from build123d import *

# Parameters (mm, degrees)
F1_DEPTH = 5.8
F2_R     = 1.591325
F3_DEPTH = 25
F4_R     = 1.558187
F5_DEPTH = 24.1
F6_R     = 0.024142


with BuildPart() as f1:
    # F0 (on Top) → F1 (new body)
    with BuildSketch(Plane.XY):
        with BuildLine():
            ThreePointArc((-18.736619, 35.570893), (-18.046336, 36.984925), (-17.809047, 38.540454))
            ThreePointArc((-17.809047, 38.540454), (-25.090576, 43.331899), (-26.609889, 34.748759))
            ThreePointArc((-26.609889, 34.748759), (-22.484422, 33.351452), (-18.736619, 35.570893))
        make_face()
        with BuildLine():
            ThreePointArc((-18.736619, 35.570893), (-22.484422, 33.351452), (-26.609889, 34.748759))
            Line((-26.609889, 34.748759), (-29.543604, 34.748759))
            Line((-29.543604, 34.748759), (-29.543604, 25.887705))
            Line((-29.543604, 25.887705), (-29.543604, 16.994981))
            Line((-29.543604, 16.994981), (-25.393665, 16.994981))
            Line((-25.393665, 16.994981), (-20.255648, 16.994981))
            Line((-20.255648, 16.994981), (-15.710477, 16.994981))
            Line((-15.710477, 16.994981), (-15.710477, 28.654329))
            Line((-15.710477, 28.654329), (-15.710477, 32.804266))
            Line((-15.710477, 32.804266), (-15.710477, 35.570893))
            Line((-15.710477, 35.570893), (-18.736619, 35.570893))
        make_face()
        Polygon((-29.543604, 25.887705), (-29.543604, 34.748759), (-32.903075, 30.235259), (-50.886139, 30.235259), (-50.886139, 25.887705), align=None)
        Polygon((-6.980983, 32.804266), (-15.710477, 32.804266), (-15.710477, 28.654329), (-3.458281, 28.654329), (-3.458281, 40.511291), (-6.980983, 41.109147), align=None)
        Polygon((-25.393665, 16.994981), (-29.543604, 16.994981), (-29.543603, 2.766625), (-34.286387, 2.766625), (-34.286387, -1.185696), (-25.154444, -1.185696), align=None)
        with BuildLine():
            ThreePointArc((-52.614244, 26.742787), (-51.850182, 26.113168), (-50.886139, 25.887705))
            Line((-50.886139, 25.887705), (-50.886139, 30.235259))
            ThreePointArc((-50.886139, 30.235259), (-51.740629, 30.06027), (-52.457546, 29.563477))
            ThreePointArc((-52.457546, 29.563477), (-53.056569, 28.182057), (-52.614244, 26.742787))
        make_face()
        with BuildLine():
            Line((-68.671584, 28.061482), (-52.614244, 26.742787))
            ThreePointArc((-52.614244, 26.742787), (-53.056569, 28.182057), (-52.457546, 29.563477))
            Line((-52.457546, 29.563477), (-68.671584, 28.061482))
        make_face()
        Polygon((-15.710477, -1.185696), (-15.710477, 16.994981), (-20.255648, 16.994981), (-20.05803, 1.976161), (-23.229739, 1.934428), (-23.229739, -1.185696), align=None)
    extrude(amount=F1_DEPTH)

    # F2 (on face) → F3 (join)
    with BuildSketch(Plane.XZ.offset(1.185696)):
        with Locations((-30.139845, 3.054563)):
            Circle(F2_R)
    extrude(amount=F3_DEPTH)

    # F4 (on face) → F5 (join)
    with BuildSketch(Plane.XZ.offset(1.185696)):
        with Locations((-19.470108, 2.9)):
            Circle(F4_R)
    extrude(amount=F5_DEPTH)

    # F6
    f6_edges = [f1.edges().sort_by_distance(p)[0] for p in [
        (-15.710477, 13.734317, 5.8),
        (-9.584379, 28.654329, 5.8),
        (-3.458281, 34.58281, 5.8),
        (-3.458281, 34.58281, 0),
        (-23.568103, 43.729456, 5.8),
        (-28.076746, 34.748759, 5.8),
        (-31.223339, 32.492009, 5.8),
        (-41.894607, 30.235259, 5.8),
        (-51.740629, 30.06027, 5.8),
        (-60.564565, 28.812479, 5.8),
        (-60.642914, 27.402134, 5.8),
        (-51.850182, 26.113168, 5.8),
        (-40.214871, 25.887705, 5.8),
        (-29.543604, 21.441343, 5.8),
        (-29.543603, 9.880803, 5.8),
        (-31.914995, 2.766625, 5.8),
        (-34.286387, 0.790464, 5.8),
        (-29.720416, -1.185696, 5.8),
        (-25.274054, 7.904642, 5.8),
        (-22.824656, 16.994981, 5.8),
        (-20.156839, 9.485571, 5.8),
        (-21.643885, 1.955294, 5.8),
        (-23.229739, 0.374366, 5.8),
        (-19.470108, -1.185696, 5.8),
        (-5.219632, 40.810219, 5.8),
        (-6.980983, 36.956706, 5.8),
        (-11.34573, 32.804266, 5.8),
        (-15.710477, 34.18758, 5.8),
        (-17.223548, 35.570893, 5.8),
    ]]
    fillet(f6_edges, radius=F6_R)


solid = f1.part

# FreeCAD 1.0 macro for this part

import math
import FreeCAD as App
import Part
import Sketcher

V = App.Vector
Q = App.Units.Quantity


def edges_at(feature, points):
    """Names of the edges that pass closest to the given points."""
    edges = feature.Shape.Edges
    near = lambda p: min(range(len(edges)), key=lambda i: edges[i].distToShape(Part.Vertex(*p))[0])
    return sorted({f"Edge{near(p) + 1}" for p in points})

doc = App.newDocument("Part")
body = doc.addObject("PartDesign::Body", "Body")

sketch1 = body.newObject("Sketcher::SketchObject", "Sketch")
sketch1.AttachmentSupport = (doc.getObject("XY_Plane"), [""])
sketch1.MapMode = "FlatFace"
sketch1.addGeometry(Part.ArcOfCircle(Part.Circle(V(-23.026257, 38.540453, 0), V(0, 0, 1), 5.21721), math.radians(-34.693443), math.radians(0.000012)), False)
sketch1.addGeometry(Part.ArcOfCircle(Part.Circle(V(-23.026262, 38.540454, 0), V(0, 0, 1), 5.217215), math.radians(-0.000003), math.radians(226.615968)), False)
sketch1.addGeometry(Part.LineSegment(V(-26.609889, 34.748759, 0), V(-29.543604, 34.748759, 0)), False)
sketch1.addGeometry(Part.LineSegment(V(-29.543604, 34.748759, 0), V(-32.903075, 30.235259, 0)), False)
sketch1.addGeometry(Part.LineSegment(V(-32.903075, 30.235259, 0), V(-50.886139, 30.235259, 0)), False)
sketch1.addGeometry(Part.ArcOfCircle(Part.Circle(V(-50.886138, 28.061479, 0), V(0, 0, 1), 2.17378), math.radians(90.000014), math.radians(136.293741)), False)
sketch1.addGeometry(Part.LineSegment(V(-52.457546, 29.563477, 0), V(-68.671584, 28.061482, 0)), False)
sketch1.addGeometry(Part.LineSegment(V(-68.671584, 28.061482, 0), V(-52.614244, 26.742787, 0)), False)
sketch1.addGeometry(Part.ArcOfCircle(Part.Circle(V(-50.88614, 28.061479, 0), V(0, 0, 1), 2.173774), math.radians(-142.653262), math.radians(-89.999982)), False)
sketch1.addGeometry(Part.LineSegment(V(-50.886139, 25.887705, 0), V(-29.543604, 25.887705, 0)), False)
sketch1.addGeometry(Part.LineSegment(V(-29.543604, 25.887705, 0), V(-29.543604, 16.994981, 0)), False)
sketch1.addGeometry(Part.LineSegment(V(-29.543604, 16.994981, 0), V(-29.543603, 2.766625, 0)), False)
sketch1.addGeometry(Part.LineSegment(V(-29.543603, 2.766625, 0), V(-34.286387, 2.766625, 0)), False)
sketch1.addGeometry(Part.LineSegment(V(-34.286387, 2.766625, 0), V(-34.286387, -1.185696, 0)), False)
sketch1.addGeometry(Part.LineSegment(V(-34.286387, -1.185696, 0), V(-25.154444, -1.185696, 0)), False)
sketch1.addGeometry(Part.LineSegment(V(-25.154444, -1.185696, 0), V(-25.393665, 16.994981, 0)), False)
sketch1.addGeometry(Part.LineSegment(V(-25.393665, 16.994981, 0), V(-20.255648, 16.994981, 0)), False)
sketch1.addGeometry(Part.LineSegment(V(-20.255648, 16.994981, 0), V(-20.05803, 1.976161, 0)), False)
sketch1.addGeometry(Part.LineSegment(V(-20.05803, 1.976161, 0), V(-23.229739, 1.934428, 0)), False)
sketch1.addGeometry(Part.LineSegment(V(-23.229739, 1.934428, 0), V(-23.229739, -1.185696, 0)), False)
sketch1.addGeometry(Part.LineSegment(V(-23.229739, -1.185696, 0), V(-15.710477, -1.185696, 0)), False)
sketch1.addGeometry(Part.LineSegment(V(-15.710477, -1.185696, 0), V(-15.710477, 28.654329, 0)), False)
sketch1.addGeometry(Part.LineSegment(V(-15.710477, 28.654329, 0), V(-3.458281, 28.654329, 0)), False)
sketch1.addGeometry(Part.LineSegment(V(-3.458281, 28.654329, 0), V(-3.458281, 40.511291, 0)), False)
sketch1.addGeometry(Part.LineSegment(V(-3.458281, 40.511291, 0), V(-6.980983, 41.109147, 0)), False)
sketch1.addGeometry(Part.LineSegment(V(-6.980983, 41.109147, 0), V(-6.980983, 32.804266, 0)), False)
sketch1.addGeometry(Part.LineSegment(V(-6.980983, 32.804266, 0), V(-15.710477, 32.804266, 0)), False)
sketch1.addGeometry(Part.LineSegment(V(-15.710477, 32.804266, 0), V(-15.710477, 35.570893, 0)), False)
sketch1.addGeometry(Part.LineSegment(V(-15.710477, 35.570893, 0), V(-18.736619, 35.570893, 0)), False)
sketch1.addConstraint(Sketcher.Constraint("Coincident", 0, 2, 1, 1))
sketch1.addConstraint(Sketcher.Constraint("Coincident", 1, 2, 2, 1))
sketch1.addConstraint(Sketcher.Constraint("Coincident", 2, 2, 3, 1))
sketch1.addConstraint(Sketcher.Constraint("Coincident", 3, 2, 4, 1))
sketch1.addConstraint(Sketcher.Constraint("Coincident", 4, 2, 5, 1))
sketch1.addConstraint(Sketcher.Constraint("Coincident", 5, 2, 6, 1))
sketch1.addConstraint(Sketcher.Constraint("Coincident", 6, 2, 7, 1))
sketch1.addConstraint(Sketcher.Constraint("Coincident", 7, 2, 8, 1))
sketch1.addConstraint(Sketcher.Constraint("Coincident", 8, 2, 9, 1))
sketch1.addConstraint(Sketcher.Constraint("Coincident", 9, 2, 10, 1))
sketch1.addConstraint(Sketcher.Constraint("Coincident", 10, 2, 11, 1))
sketch1.addConstraint(Sketcher.Constraint("Coincident", 11, 2, 12, 1))
sketch1.addConstraint(Sketcher.Constraint("Coincident", 12, 2, 13, 1))
sketch1.addConstraint(Sketcher.Constraint("Coincident", 13, 2, 14, 1))
sketch1.addConstraint(Sketcher.Constraint("Coincident", 14, 2, 15, 1))
sketch1.addConstraint(Sketcher.Constraint("Coincident", 15, 2, 16, 1))
sketch1.addConstraint(Sketcher.Constraint("Coincident", 16, 2, 17, 1))
sketch1.addConstraint(Sketcher.Constraint("Coincident", 17, 2, 18, 1))
sketch1.addConstraint(Sketcher.Constraint("Coincident", 18, 2, 19, 1))
sketch1.addConstraint(Sketcher.Constraint("Coincident", 19, 2, 20, 1))
sketch1.addConstraint(Sketcher.Constraint("Coincident", 20, 2, 21, 1))
sketch1.addConstraint(Sketcher.Constraint("Coincident", 21, 2, 22, 1))
sketch1.addConstraint(Sketcher.Constraint("Coincident", 22, 2, 23, 1))
sketch1.addConstraint(Sketcher.Constraint("Coincident", 23, 2, 24, 1))
sketch1.addConstraint(Sketcher.Constraint("Coincident", 24, 2, 25, 1))
sketch1.addConstraint(Sketcher.Constraint("Coincident", 25, 2, 26, 1))
sketch1.addConstraint(Sketcher.Constraint("Coincident", 26, 2, 27, 1))
sketch1.addConstraint(Sketcher.Constraint("Coincident", 27, 2, 28, 1))
sketch1.addConstraint(Sketcher.Constraint("Coincident", 28, 2, 0, 1))
sketch1.addConstraint(Sketcher.Constraint("Horizontal", 2))
sketch1.addConstraint(Sketcher.Constraint("Horizontal", 4))
sketch1.addConstraint(Sketcher.Constraint("Horizontal", 9))
sketch1.addConstraint(Sketcher.Constraint("Vertical", 10))
sketch1.addConstraint(Sketcher.Constraint("Vertical", 11))
sketch1.addConstraint(Sketcher.Constraint("Horizontal", 12))
sketch1.addConstraint(Sketcher.Constraint("Vertical", 13))
sketch1.addConstraint(Sketcher.Constraint("Horizontal", 14))
sketch1.addConstraint(Sketcher.Constraint("Horizontal", 16))
sketch1.addConstraint(Sketcher.Constraint("Vertical", 19))
sketch1.addConstraint(Sketcher.Constraint("Horizontal", 20))
sketch1.addConstraint(Sketcher.Constraint("Vertical", 21))
sketch1.addConstraint(Sketcher.Constraint("Horizontal", 22))
sketch1.addConstraint(Sketcher.Constraint("Vertical", 23))
sketch1.addConstraint(Sketcher.Constraint("Vertical", 25))
sketch1.addConstraint(Sketcher.Constraint("Horizontal", 26))
sketch1.addConstraint(Sketcher.Constraint("Vertical", 27))
sketch1.addConstraint(Sketcher.Constraint("Horizontal", 28))
sketch1.addConstraint(Sketcher.Constraint("Coincident", 1, 3, 0, 3))
sketch1.addConstraint(Sketcher.Constraint("Coincident", 8, 3, 5, 3))
sketch1.addConstraint(Sketcher.Constraint("Radius", 0, Q("5.21721 mm")))
sketch1.addConstraint(Sketcher.Constraint("Radius", 5, Q("2.17378 mm")))
sketch1.addConstraint(Sketcher.Constraint("Radius", 8, Q("2.173774 mm")))
sketch1.addConstraint(Sketcher.Constraint("DistanceY", 8, 3, 5, 2, Q("1.501998 mm")))
sketch1.addConstraint(Sketcher.Constraint("DistanceX", 20, 1, 20, 2, Q("7.519262 mm")))
sketch1.addConstraint(Sketcher.Constraint("DistanceY", 13, 2, 13, 1, Q("3.952321 mm")))
sketch1.addConstraint(Sketcher.Constraint("DistanceY", 23, 1, 23, 2, Q("11.856962 mm")))
sketch1.addConstraint(Sketcher.Constraint("DistanceY", 25, 2, 25, 1, Q("8.304881 mm")))
sketch1.addConstraint(Sketcher.Constraint("DistanceY", 3, 2, 2, 2, Q("4.5135 mm")))
sketch1.addConstraint(Sketcher.Constraint("DistanceX", 7, 2, 5, 2, Q("0.156698 mm")))
sketch1.addConstraint(Sketcher.Constraint("DistanceY", 13, 2, 9, 2, Q("27.073401 mm")))
sketch1.addConstraint(Sketcher.Constraint("Distance", 3, Q("5.62652 mm")))
sketch1.addConstraint(Sketcher.Constraint("Distance", 6, Q("16.283458 mm")))
sketch1.addConstraint(Sketcher.Constraint("Distance", 15, Q("18.182251 mm")))
sketch1.addConstraint(Sketcher.Constraint("Distance", 17, Q("15.02012 mm")))
sketch1.addConstraint(Sketcher.Constraint("DistanceX", 2, 2, 2, 1, Q("2.933715 mm")))
sketch1.addConstraint(Sketcher.Constraint("DistanceX", 4, 2, 4, 1, Q("17.983064 mm")))
sketch1.addConstraint(Sketcher.Constraint("DistanceX", 9, 1, 9, 2, Q("21.342535 mm")))
sketch1.addConstraint(Sketcher.Constraint("DistanceX", 12, 2, 12, 1, Q("4.742784 mm")))
sketch1.addConstraint(Sketcher.Constraint("DistanceX", 14, 1, 14, 2, Q("9.131943 mm")))
sketch1.addConstraint(Sketcher.Constraint("DistanceX", 16, 1, 16, 2, Q("5.138017 mm")))
sketch1.addConstraint(Sketcher.Constraint("DistanceX", 22, 1, 22, 2, Q("12.252196 mm")))
sketch1.addConstraint(Sketcher.Constraint("DistanceX", 26, 2, 26, 1, Q("8.729494 mm")))
sketch1.addConstraint(Sketcher.Constraint("DistanceX", 28, 2, 28, 1, Q("3.026142 mm")))
sketch1.addConstraint(Sketcher.Constraint("DistanceY", 10, 2, 10, 1, Q("8.892724 mm")))
sketch1.addConstraint(Sketcher.Constraint("DistanceY", 19, 2, 19, 1, Q("3.120124 mm")))
sketch1.addConstraint(Sketcher.Constraint("DistanceY", 21, 1, 21, 2, Q("29.840025 mm")))
sketch1.addConstraint(Sketcher.Constraint("DistanceY", 27, 1, 27, 2, Q("2.766627 mm")))
sketch1.addConstraint(Sketcher.Constraint("DistanceX", 5, 3, -1, 1, Q("50.886138 mm")))
sketch1.addConstraint(Sketcher.Constraint("DistanceY", -1, 1, 5, 3, Q("28.061479 mm")))
sketch1.addConstraint(Sketcher.Constraint("DistanceX", 1, 2, -1, 1, Q("26.609889 mm")))
sketch1.addConstraint(Sketcher.Constraint("DistanceX", 8, 2, -1, 1, Q("50.886139 mm")))
sketch1.addConstraint(Sketcher.Constraint("DistanceY", -1, 1, 15, 2, Q("16.994981 mm")))
sketch1.addConstraint(Sketcher.Constraint("DistanceX", 17, 2, -1, 1, Q("20.05803 mm")))
sketch1.addConstraint(Sketcher.Constraint("DistanceX", 18, 2, -1, 1, Q("23.229739 mm")))
sketch1.addConstraint(Sketcher.Constraint("DistanceY", -1, 1, 21, 2, Q("28.654329 mm")))
sketch1.addConstraint(Sketcher.Constraint("DistanceX", 28, 2, -1, 1, Q("18.736619 mm")))
sketch1.addConstraint(Sketcher.Constraint("DistanceX", 5, 3, 0, 3, Q("27.859882 mm")))
sketch1.addConstraint(Sketcher.Constraint("DistanceX", 6, 2, 5, 2, Q("16.214038 mm")))
sketch1.addConstraint(Sketcher.Constraint("DistanceY", 27, 2, 0, 2, Q("2.969561 mm")))
pad1 = body.newObject("PartDesign::Pad", "Pad")
pad1.Profile = sketch1
pad1.Length = 5.8

sketch2 = body.newObject("Sketcher::SketchObject", "Sketch001")
sketch2.AttachmentSupport = (doc.getObject("XZ_Plane"), [""])
sketch2.MapMode = "FlatFace"
sketch2.AttachmentOffset = App.Placement(V(0, 0, 1.185696), App.Rotation())
sketch2.addGeometry(Part.Circle(V(-30.1, 3.1, 0), V(0, 0, 1), 1.6), False)
sketch2.addConstraint(Sketcher.Constraint("Diameter", 0, Q("3.18265 mm")))
sketch2.addConstraint(Sketcher.Constraint("DistanceX", 0, 3, -1, 1, Q("30.139845 mm")))
sketch2.addConstraint(Sketcher.Constraint("DistanceY", -1, 1, 0, 3, Q("3.054563 mm")))
pad2 = body.newObject("PartDesign::Pad", "Pad001")
pad2.Profile = sketch2
pad2.Length = 25

sketch3 = body.newObject("Sketcher::SketchObject", "Sketch002")
sketch3.AttachmentSupport = (doc.getObject("XZ_Plane"), [""])
sketch3.MapMode = "FlatFace"
sketch3.AttachmentOffset = App.Placement(V(0, 0, 1.185696), App.Rotation())
sketch3.addGeometry(Part.Circle(V(-19.5, 2.9, 0), V(0, 0, 1), 1.6), False)
sketch3.addConstraint(Sketcher.Constraint("DistanceY", -1, 1, 0, 3, Q("2.9 mm")))
sketch3.addConstraint(Sketcher.Constraint("Diameter", 0, Q("3.116374 mm")))
sketch3.addConstraint(Sketcher.Constraint("DistanceX", 0, 3, -1, 1, Q("19.470108 mm")))
pad3 = body.newObject("PartDesign::Pad", "Pad002")
pad3.Profile = sketch3
pad3.Length = 24.1
doc.recompute()

fillet = body.newObject("PartDesign::Fillet", "Fillet")
fillet.Base = (pad3, edges_at(pad3, [
    (-15.71, 13.734, 5.8),
    (-9.584, 28.654, 5.8),
    (-3.458, 34.583, 5.8),
    (-3.458, 34.583, 0),
    (-25.091, 43.332, 5.8),
    (-28.077, 34.749, 5.8),
    (-31.223, 32.492, 5.8),
    (-41.895, 30.235, 5.8),
    (-51.741, 30.06, 5.8),
    (-60.565, 28.812, 5.8),
    (-60.643, 27.402, 5.8),
    (-51.85, 26.113, 5.8),
    (-40.215, 25.888, 5.8),
    (-29.544, 21.441, 5.8),
    (-29.544, 9.881, 5.8),
    (-31.915, 2.767, 5.8),
    (-34.286, 0.79, 5.8),
    (-29.72, -1.186, 5.8),
    (-25.274, 7.905, 5.8),
    (-22.825, 16.995, 5.8),
    (-20.157, 9.486, 5.8),
    (-21.644, 1.955, 5.8),
    (-23.23, 0.374, 5.8),
    (-19.47, -1.186, 5.8),
    (-5.22, 40.81, 5.8),
    (-6.981, 36.957, 5.8),
    (-11.346, 32.804, 5.8),
    (-15.71, 34.188, 5.8),
    (-17.224, 35.571, 5.8),
]))
fillet.Radius = 0.024142

doc.recompute()
